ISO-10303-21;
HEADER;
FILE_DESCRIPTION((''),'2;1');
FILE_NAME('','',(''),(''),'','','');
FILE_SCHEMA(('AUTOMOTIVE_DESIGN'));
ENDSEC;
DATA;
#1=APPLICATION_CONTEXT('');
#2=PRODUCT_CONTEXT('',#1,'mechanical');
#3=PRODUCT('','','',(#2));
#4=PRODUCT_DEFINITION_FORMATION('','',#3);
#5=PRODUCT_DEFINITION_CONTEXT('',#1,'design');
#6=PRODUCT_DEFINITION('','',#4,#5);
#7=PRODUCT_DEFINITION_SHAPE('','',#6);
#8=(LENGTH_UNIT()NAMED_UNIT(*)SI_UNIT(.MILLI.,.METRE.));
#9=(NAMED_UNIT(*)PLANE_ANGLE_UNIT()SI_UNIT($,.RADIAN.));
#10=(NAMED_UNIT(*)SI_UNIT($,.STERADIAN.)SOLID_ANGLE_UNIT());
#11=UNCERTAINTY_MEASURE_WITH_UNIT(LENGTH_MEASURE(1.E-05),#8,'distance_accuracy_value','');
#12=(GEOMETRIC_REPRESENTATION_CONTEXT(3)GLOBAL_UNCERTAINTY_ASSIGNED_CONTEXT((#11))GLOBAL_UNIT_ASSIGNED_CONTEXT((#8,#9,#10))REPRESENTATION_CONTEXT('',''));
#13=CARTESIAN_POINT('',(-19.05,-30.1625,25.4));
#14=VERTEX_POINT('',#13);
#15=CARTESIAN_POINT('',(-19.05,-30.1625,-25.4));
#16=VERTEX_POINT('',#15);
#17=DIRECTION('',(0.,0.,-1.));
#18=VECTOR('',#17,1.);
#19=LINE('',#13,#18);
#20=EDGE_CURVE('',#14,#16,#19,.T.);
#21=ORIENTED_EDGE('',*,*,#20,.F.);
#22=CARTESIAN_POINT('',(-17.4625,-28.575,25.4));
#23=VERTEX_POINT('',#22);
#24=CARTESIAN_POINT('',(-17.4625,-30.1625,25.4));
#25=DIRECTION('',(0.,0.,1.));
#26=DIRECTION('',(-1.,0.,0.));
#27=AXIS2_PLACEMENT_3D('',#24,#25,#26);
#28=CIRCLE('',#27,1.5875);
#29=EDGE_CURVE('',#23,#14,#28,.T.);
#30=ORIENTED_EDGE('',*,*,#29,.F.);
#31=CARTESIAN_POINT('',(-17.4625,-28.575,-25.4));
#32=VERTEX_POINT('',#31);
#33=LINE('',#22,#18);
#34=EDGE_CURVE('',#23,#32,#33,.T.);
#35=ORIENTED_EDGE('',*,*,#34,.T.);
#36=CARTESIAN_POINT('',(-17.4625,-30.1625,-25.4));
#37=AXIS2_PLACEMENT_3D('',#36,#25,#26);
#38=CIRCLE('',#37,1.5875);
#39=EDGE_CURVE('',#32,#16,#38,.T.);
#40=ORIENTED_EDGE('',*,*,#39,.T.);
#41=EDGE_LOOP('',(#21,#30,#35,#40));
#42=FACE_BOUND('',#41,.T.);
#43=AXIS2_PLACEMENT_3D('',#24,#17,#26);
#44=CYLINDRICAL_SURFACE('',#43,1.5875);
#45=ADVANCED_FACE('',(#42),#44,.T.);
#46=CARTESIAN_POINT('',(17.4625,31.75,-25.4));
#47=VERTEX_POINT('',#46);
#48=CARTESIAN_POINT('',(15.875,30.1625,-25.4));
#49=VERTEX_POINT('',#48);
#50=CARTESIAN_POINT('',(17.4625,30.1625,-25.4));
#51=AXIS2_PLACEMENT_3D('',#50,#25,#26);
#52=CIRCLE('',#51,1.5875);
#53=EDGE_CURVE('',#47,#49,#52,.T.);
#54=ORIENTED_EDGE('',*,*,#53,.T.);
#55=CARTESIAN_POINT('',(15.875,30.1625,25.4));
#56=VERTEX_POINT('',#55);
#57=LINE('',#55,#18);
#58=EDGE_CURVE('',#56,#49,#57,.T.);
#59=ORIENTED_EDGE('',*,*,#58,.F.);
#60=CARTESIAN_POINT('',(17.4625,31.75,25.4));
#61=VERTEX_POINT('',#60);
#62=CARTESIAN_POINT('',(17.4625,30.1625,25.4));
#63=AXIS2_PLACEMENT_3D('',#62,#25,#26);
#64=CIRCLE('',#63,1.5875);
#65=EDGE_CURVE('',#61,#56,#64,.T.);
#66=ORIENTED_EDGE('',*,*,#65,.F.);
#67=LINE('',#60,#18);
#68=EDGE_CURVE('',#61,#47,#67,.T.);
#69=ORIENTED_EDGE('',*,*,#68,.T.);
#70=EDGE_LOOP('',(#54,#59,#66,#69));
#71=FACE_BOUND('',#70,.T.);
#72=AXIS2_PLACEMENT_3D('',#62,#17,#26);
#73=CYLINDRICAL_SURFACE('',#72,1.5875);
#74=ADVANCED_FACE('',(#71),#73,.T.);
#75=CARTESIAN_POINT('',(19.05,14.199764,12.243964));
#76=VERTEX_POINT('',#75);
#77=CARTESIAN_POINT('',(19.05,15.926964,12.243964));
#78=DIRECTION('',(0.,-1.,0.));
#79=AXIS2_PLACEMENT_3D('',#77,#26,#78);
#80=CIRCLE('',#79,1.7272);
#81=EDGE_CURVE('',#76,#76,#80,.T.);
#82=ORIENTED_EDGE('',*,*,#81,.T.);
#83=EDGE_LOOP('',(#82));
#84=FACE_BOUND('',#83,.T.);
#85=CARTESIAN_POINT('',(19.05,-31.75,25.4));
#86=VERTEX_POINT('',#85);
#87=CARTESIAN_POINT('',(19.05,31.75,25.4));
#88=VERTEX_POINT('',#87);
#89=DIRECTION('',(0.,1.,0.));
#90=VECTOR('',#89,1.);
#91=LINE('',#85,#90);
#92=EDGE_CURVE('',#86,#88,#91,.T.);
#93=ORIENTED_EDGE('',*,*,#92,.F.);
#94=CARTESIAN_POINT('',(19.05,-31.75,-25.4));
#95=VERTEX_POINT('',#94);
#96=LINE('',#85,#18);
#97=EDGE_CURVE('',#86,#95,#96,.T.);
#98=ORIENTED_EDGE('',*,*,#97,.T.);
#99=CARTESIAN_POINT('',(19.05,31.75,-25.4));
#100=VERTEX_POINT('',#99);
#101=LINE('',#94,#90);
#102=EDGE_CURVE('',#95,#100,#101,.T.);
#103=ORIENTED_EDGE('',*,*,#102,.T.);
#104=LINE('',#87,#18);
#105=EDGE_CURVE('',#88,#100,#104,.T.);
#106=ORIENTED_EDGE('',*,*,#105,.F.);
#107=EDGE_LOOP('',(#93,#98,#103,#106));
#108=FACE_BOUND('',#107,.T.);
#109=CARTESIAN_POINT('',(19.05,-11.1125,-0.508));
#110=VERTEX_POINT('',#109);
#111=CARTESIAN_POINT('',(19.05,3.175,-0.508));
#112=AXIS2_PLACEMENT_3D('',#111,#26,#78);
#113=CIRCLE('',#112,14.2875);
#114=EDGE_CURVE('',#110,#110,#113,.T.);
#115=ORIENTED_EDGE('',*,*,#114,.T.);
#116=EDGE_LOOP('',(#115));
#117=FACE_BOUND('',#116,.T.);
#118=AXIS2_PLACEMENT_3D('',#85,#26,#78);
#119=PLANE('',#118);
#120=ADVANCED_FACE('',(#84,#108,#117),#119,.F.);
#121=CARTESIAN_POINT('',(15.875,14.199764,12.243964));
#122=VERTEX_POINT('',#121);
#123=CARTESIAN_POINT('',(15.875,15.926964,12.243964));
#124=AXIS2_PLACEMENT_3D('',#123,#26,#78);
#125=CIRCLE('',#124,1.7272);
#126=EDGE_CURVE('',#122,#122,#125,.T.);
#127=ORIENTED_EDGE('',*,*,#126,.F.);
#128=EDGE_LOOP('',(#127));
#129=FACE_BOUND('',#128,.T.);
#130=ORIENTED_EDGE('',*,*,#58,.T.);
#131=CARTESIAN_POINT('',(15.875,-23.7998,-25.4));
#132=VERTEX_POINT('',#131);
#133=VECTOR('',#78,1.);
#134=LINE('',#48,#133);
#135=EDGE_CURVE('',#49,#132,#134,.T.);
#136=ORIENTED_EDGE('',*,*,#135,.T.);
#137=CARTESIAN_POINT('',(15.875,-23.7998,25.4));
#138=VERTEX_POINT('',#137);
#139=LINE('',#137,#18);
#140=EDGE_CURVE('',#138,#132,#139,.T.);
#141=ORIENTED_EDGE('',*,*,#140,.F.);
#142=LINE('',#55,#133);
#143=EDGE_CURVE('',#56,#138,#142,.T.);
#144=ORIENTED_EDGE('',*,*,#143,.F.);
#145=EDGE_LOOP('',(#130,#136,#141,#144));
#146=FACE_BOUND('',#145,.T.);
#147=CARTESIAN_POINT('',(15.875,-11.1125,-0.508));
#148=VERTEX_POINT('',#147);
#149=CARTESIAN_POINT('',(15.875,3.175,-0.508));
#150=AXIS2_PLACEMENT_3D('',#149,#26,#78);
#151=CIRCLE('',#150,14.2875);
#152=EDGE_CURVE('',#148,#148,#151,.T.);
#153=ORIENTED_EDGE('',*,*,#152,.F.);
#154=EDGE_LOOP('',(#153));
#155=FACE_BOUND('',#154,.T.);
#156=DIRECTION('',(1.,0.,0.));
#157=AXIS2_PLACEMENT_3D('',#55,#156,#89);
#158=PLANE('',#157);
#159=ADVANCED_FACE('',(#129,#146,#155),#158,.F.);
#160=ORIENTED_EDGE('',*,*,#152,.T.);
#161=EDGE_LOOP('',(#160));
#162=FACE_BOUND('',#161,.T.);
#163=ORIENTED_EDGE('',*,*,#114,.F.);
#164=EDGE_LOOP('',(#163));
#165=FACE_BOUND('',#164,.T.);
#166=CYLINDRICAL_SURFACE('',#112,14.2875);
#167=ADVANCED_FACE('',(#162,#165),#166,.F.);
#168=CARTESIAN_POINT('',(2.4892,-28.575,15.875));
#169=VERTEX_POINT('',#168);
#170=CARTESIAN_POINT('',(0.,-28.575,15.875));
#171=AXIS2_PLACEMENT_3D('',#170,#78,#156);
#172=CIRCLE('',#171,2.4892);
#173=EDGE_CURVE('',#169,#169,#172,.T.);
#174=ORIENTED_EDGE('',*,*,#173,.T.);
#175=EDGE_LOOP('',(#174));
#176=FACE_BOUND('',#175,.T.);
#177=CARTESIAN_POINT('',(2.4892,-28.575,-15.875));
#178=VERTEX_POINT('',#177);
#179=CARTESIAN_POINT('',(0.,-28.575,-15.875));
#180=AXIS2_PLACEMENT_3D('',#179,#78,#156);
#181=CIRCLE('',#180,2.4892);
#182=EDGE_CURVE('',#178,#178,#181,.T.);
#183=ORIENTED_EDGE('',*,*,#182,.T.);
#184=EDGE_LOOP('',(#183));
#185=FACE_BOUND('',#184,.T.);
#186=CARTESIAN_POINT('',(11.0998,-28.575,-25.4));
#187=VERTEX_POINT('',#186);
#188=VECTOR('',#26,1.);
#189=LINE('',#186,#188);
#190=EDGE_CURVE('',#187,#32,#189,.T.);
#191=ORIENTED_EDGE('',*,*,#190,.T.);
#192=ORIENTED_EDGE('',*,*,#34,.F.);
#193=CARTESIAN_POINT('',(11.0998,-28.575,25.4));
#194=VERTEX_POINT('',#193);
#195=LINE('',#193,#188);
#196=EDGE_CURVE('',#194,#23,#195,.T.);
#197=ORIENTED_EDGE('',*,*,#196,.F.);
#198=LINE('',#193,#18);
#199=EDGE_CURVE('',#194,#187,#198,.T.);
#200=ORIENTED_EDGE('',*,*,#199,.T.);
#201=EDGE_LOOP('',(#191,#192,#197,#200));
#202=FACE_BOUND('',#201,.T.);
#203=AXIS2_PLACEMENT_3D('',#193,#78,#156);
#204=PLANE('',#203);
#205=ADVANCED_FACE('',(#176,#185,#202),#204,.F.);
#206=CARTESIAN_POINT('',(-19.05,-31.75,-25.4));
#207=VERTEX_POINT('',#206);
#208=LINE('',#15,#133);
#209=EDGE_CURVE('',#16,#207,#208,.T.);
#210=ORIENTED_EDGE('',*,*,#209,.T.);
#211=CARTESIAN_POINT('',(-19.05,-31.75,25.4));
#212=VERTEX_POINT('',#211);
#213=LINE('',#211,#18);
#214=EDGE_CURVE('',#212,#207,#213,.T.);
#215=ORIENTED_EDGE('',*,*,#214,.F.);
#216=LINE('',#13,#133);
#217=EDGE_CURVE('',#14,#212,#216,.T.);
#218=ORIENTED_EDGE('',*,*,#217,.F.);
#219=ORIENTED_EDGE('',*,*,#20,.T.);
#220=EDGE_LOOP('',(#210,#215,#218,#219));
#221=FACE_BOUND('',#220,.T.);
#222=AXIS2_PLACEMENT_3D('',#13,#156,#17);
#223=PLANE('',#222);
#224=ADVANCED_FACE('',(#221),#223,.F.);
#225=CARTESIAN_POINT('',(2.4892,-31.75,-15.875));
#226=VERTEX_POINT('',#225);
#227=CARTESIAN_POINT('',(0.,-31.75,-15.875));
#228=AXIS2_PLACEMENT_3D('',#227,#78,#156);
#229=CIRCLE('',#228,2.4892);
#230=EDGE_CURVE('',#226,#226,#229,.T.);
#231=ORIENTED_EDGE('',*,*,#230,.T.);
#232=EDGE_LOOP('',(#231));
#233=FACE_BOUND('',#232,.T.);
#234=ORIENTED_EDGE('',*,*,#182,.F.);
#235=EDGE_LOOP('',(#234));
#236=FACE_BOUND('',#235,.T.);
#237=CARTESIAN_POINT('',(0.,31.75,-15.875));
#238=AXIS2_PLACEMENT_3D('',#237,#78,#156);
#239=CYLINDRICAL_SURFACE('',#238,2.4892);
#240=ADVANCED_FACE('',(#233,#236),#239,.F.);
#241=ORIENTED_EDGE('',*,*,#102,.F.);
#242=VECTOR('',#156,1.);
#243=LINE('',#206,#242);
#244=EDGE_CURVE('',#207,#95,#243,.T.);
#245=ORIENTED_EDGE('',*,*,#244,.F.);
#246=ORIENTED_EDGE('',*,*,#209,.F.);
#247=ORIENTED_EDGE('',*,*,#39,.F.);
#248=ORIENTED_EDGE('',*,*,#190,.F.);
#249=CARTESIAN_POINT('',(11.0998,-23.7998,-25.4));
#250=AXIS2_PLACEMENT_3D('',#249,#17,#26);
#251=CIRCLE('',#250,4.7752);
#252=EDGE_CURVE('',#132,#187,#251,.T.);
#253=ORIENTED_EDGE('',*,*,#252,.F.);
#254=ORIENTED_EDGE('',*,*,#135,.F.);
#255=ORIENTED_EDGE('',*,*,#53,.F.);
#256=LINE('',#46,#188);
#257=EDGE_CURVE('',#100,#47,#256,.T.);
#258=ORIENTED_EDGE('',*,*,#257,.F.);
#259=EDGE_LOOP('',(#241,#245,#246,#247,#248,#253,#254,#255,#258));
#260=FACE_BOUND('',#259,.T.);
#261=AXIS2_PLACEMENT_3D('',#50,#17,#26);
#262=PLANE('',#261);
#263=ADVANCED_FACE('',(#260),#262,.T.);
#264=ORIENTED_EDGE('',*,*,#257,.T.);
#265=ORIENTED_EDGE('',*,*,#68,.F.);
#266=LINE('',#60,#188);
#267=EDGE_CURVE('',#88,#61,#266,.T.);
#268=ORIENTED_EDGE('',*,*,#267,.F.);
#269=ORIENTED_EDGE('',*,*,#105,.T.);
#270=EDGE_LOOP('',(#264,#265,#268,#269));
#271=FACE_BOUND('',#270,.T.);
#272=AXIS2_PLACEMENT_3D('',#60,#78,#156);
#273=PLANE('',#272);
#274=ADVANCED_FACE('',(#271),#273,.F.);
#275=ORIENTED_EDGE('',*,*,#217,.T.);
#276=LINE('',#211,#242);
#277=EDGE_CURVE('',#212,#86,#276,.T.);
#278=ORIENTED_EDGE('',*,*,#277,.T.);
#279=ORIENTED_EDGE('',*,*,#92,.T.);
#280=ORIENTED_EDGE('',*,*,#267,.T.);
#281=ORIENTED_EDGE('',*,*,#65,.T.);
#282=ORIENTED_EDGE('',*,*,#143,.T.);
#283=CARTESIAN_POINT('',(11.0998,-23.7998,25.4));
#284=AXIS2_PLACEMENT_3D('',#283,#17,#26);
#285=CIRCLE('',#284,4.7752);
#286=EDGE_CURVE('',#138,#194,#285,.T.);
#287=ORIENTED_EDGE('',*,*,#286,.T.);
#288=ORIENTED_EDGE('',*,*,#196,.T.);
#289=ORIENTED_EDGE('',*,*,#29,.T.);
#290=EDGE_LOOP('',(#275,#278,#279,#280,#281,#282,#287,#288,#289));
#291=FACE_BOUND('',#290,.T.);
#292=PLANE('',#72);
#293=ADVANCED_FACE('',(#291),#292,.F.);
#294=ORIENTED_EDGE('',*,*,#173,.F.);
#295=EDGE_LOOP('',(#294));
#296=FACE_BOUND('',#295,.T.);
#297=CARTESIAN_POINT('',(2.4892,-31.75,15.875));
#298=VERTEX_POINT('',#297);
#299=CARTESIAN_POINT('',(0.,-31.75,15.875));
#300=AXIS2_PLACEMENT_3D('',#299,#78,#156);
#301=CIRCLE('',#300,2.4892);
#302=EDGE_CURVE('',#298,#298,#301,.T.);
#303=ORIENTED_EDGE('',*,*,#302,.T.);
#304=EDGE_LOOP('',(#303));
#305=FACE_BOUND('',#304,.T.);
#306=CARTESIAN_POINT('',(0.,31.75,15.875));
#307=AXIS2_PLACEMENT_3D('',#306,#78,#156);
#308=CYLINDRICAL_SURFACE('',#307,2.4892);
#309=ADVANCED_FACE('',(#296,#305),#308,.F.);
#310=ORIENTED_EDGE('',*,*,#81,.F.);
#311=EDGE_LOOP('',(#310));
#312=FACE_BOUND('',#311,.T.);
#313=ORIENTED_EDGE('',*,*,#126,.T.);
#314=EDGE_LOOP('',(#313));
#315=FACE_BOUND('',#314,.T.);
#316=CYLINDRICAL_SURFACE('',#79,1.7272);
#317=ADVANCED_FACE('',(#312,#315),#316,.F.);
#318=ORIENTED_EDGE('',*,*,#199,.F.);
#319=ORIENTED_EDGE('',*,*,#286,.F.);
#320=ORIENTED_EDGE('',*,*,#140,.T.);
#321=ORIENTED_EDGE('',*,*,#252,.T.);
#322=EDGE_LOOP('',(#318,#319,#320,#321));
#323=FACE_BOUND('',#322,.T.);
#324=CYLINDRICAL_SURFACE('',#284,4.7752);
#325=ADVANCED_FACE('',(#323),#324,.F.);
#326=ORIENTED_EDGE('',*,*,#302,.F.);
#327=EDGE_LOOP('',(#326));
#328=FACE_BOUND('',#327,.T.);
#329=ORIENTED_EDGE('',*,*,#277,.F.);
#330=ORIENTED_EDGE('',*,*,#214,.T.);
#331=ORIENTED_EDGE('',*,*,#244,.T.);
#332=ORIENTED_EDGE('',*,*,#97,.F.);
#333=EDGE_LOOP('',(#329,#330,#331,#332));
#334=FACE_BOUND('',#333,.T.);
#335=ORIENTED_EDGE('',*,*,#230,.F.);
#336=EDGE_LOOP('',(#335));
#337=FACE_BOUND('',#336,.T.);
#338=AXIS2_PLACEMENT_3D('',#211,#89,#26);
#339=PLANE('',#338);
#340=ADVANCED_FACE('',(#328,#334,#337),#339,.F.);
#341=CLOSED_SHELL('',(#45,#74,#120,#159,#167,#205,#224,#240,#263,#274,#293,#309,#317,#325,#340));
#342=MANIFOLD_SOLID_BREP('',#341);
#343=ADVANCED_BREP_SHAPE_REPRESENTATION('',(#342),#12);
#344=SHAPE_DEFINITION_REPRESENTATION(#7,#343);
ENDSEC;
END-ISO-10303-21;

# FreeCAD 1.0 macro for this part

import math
import FreeCAD as App
import Part
import Sketcher
Q = App.Units.Quantity

doc = App.newDocument("Part")
body = doc.addObject("PartDesign::Body", "Body")

sketch1 = body.newObject("Sketcher::SketchObject", "Sketch")
sketch1.AttachmentSupport = (doc.getObject("XY_Plane"), [""])
sketch1.MapMode = "FlatFace"
sketch1.addGeometry([
    Part.LineSegment(App.Vector(-19.05, -31.75, 0), App.Vector(19.05, -31.75, 0)),
    Part.LineSegment(App.Vector(19.05, -31.75, 0), App.Vector(19.05, 31.75, 0)),
    Part.LineSegment(App.Vector(19.05, 31.75, 0), App.Vector(17.4625, 31.75, 0)),
    Part.ArcOfCircle(Part.Circle(App.Vector(17.4625, 30.1625, 0), App.Vector(0, 0, 1), 1.5875), math.radians(90), math.radians(180)),
    Part.LineSegment(App.Vector(15.875, 30.1625, 0), App.Vector(15.875, -23.7998, 0)),
    Part.ArcOfCircle(Part.Circle(App.Vector(11.0998, -23.7998, 0), App.Vector(0, 0, 1), 4.7752), math.radians(-90), math.radians(0)),
    Part.LineSegment(App.Vector(11.0998, -28.575, 0), App.Vector(-17.4625, -28.575, 0)),
    Part.ArcOfCircle(Part.Circle(App.Vector(-17.4625, -30.1625, 0), App.Vector(0, 0, 1), 1.5875), math.radians(90), math.radians(180)),
    Part.LineSegment(App.Vector(-19.05, -30.1625, 0), App.Vector(-19.05, -31.75, 0)),
], False)
sketch1.addConstraint([
    Sketcher.Constraint("Coincident", 0, 2, 1, 1),
    Sketcher.Constraint("Coincident", 1, 2, 2, 1),
    Sketcher.Constraint("Tangent", 2, 2, 3, 1),
    Sketcher.Constraint("Tangent", 3, 2, 4, 1),
    Sketcher.Constraint("Tangent", 4, 2, 5, 2),
    Sketcher.Constraint("Tangent", 5, 1, 6, 1),
    Sketcher.Constraint("Tangent", 6, 2, 7, 1),
    Sketcher.Constraint("Tangent", 7, 2, 8, 1),
    Sketcher.Constraint("Coincident", 8, 2, 0, 1),
    Sketcher.Constraint("Horizontal", 0),
    Sketcher.Constraint("Vertical", 1),
    Sketcher.Constraint("Horizontal", 2),
    Sketcher.Constraint("Vertical", 4),
    Sketcher.Constraint("Horizontal", 6),
    Sketcher.Constraint("Vertical", 8),
    Sketcher.Constraint("Equal", 3, 7),
    Sketcher.Constraint("Symmetric", 3, 3, 7, 3, -1, 1),
    Sketcher.Constraint("Symmetric", 1, 2, 8, 2, -1, 1),
    Sketcher.Constraint("DistanceX", 0, 1, 0, 2, Q("1.5 in")),
    Sketcher.Constraint("DistanceY", 1, 1, 1, 2, Q("2.5 in")),
    Sketcher.Constraint("Radius", 3, Q("0.0625 in")),
    Sketcher.Constraint("Radius", 5, Q("0.188 in")),
])
pad1 = body.newObject("PartDesign::Pad", "Pad")
pad1.Profile = sketch1
pad1.Length = Q("2 in")
pad1.Midplane = True

sketch2 = body.newObject("Sketcher::SketchObject", "Sketch001")
sketch2.AttachmentSupport = (doc.getObject("YZ_Plane"), [""])
sketch2.MapMode = "FlatFace"
sketch2.AttachmentOffset = App.Placement(App.Vector(0, 0, 0.625 * 25.4), App.Rotation())
sketch2.addGeometry([
    Part.Circle(App.Vector(3.175, -0.508, 0), App.Vector(0, 0, 1), 14.2875),
    Part.Circle(App.Vector(15.926964, 12.243964, 0), App.Vector(0, 0, 1), 1.7272),
], False)
sketch2.addConstraint([
    Sketcher.Constraint("Diameter", 0, Q("1.125 in")),
    Sketcher.Constraint("Diameter", 1, Q("0.136 in")),
    Sketcher.Constraint("DistanceY", 0, 3, -1, 1, Q("0.02 in")),
    Sketcher.Constraint("DistanceX", -1, 1, 0, 3, Q("0.125 in")),
    Sketcher.Constraint("DistanceX", -1, 1, 1, 3, Q("15.926964 mm")),
    Sketcher.Constraint("DistanceY", -1, 1, 1, 3, Q("12.243964 mm")),
])
pocket1 = body.newObject("PartDesign::Pocket", "Pocket")
pocket1.Profile = sketch2
pocket1.Type = "ThroughAll"
pocket1.Reversed = True

sketch3 = body.newObject("Sketcher::SketchObject", "Sketch002")
sketch3.AttachmentSupport = (doc.getObject("XZ_Plane"), [""])
sketch3.MapMode = "FlatFace"
sketch3.AttachmentOffset = App.Placement(App.Vector(0, 0, 1.25 * 25.4), App.Rotation())
sketch3.addGeometry([
    Part.Circle(App.Vector(0, 15.875, 0), App.Vector(0, 0, 1), 2.4892),
    Part.Circle(App.Vector(0, -15.875, 0), App.Vector(0, 0, 1), 2.4892),
], False)
sketch3.addConstraint([
    Sketcher.Constraint("Equal", 0, 1),
    Sketcher.Constraint("Symmetric", 0, 3, 1, 3, -1, 1),
    Sketcher.Constraint("PointOnObject", 0, 3, -2),
    Sketcher.Constraint("Diameter", 0, Q("0.196 in")),
    Sketcher.Constraint("DistanceY", 1, 3, 0, 3, Q("1.25 in")),
])
pocket2 = body.newObject("PartDesign::Pocket", "Pocket001")
pocket2.Profile = sketch3
pocket2.Type = "ThroughAll"

doc.recompute()
